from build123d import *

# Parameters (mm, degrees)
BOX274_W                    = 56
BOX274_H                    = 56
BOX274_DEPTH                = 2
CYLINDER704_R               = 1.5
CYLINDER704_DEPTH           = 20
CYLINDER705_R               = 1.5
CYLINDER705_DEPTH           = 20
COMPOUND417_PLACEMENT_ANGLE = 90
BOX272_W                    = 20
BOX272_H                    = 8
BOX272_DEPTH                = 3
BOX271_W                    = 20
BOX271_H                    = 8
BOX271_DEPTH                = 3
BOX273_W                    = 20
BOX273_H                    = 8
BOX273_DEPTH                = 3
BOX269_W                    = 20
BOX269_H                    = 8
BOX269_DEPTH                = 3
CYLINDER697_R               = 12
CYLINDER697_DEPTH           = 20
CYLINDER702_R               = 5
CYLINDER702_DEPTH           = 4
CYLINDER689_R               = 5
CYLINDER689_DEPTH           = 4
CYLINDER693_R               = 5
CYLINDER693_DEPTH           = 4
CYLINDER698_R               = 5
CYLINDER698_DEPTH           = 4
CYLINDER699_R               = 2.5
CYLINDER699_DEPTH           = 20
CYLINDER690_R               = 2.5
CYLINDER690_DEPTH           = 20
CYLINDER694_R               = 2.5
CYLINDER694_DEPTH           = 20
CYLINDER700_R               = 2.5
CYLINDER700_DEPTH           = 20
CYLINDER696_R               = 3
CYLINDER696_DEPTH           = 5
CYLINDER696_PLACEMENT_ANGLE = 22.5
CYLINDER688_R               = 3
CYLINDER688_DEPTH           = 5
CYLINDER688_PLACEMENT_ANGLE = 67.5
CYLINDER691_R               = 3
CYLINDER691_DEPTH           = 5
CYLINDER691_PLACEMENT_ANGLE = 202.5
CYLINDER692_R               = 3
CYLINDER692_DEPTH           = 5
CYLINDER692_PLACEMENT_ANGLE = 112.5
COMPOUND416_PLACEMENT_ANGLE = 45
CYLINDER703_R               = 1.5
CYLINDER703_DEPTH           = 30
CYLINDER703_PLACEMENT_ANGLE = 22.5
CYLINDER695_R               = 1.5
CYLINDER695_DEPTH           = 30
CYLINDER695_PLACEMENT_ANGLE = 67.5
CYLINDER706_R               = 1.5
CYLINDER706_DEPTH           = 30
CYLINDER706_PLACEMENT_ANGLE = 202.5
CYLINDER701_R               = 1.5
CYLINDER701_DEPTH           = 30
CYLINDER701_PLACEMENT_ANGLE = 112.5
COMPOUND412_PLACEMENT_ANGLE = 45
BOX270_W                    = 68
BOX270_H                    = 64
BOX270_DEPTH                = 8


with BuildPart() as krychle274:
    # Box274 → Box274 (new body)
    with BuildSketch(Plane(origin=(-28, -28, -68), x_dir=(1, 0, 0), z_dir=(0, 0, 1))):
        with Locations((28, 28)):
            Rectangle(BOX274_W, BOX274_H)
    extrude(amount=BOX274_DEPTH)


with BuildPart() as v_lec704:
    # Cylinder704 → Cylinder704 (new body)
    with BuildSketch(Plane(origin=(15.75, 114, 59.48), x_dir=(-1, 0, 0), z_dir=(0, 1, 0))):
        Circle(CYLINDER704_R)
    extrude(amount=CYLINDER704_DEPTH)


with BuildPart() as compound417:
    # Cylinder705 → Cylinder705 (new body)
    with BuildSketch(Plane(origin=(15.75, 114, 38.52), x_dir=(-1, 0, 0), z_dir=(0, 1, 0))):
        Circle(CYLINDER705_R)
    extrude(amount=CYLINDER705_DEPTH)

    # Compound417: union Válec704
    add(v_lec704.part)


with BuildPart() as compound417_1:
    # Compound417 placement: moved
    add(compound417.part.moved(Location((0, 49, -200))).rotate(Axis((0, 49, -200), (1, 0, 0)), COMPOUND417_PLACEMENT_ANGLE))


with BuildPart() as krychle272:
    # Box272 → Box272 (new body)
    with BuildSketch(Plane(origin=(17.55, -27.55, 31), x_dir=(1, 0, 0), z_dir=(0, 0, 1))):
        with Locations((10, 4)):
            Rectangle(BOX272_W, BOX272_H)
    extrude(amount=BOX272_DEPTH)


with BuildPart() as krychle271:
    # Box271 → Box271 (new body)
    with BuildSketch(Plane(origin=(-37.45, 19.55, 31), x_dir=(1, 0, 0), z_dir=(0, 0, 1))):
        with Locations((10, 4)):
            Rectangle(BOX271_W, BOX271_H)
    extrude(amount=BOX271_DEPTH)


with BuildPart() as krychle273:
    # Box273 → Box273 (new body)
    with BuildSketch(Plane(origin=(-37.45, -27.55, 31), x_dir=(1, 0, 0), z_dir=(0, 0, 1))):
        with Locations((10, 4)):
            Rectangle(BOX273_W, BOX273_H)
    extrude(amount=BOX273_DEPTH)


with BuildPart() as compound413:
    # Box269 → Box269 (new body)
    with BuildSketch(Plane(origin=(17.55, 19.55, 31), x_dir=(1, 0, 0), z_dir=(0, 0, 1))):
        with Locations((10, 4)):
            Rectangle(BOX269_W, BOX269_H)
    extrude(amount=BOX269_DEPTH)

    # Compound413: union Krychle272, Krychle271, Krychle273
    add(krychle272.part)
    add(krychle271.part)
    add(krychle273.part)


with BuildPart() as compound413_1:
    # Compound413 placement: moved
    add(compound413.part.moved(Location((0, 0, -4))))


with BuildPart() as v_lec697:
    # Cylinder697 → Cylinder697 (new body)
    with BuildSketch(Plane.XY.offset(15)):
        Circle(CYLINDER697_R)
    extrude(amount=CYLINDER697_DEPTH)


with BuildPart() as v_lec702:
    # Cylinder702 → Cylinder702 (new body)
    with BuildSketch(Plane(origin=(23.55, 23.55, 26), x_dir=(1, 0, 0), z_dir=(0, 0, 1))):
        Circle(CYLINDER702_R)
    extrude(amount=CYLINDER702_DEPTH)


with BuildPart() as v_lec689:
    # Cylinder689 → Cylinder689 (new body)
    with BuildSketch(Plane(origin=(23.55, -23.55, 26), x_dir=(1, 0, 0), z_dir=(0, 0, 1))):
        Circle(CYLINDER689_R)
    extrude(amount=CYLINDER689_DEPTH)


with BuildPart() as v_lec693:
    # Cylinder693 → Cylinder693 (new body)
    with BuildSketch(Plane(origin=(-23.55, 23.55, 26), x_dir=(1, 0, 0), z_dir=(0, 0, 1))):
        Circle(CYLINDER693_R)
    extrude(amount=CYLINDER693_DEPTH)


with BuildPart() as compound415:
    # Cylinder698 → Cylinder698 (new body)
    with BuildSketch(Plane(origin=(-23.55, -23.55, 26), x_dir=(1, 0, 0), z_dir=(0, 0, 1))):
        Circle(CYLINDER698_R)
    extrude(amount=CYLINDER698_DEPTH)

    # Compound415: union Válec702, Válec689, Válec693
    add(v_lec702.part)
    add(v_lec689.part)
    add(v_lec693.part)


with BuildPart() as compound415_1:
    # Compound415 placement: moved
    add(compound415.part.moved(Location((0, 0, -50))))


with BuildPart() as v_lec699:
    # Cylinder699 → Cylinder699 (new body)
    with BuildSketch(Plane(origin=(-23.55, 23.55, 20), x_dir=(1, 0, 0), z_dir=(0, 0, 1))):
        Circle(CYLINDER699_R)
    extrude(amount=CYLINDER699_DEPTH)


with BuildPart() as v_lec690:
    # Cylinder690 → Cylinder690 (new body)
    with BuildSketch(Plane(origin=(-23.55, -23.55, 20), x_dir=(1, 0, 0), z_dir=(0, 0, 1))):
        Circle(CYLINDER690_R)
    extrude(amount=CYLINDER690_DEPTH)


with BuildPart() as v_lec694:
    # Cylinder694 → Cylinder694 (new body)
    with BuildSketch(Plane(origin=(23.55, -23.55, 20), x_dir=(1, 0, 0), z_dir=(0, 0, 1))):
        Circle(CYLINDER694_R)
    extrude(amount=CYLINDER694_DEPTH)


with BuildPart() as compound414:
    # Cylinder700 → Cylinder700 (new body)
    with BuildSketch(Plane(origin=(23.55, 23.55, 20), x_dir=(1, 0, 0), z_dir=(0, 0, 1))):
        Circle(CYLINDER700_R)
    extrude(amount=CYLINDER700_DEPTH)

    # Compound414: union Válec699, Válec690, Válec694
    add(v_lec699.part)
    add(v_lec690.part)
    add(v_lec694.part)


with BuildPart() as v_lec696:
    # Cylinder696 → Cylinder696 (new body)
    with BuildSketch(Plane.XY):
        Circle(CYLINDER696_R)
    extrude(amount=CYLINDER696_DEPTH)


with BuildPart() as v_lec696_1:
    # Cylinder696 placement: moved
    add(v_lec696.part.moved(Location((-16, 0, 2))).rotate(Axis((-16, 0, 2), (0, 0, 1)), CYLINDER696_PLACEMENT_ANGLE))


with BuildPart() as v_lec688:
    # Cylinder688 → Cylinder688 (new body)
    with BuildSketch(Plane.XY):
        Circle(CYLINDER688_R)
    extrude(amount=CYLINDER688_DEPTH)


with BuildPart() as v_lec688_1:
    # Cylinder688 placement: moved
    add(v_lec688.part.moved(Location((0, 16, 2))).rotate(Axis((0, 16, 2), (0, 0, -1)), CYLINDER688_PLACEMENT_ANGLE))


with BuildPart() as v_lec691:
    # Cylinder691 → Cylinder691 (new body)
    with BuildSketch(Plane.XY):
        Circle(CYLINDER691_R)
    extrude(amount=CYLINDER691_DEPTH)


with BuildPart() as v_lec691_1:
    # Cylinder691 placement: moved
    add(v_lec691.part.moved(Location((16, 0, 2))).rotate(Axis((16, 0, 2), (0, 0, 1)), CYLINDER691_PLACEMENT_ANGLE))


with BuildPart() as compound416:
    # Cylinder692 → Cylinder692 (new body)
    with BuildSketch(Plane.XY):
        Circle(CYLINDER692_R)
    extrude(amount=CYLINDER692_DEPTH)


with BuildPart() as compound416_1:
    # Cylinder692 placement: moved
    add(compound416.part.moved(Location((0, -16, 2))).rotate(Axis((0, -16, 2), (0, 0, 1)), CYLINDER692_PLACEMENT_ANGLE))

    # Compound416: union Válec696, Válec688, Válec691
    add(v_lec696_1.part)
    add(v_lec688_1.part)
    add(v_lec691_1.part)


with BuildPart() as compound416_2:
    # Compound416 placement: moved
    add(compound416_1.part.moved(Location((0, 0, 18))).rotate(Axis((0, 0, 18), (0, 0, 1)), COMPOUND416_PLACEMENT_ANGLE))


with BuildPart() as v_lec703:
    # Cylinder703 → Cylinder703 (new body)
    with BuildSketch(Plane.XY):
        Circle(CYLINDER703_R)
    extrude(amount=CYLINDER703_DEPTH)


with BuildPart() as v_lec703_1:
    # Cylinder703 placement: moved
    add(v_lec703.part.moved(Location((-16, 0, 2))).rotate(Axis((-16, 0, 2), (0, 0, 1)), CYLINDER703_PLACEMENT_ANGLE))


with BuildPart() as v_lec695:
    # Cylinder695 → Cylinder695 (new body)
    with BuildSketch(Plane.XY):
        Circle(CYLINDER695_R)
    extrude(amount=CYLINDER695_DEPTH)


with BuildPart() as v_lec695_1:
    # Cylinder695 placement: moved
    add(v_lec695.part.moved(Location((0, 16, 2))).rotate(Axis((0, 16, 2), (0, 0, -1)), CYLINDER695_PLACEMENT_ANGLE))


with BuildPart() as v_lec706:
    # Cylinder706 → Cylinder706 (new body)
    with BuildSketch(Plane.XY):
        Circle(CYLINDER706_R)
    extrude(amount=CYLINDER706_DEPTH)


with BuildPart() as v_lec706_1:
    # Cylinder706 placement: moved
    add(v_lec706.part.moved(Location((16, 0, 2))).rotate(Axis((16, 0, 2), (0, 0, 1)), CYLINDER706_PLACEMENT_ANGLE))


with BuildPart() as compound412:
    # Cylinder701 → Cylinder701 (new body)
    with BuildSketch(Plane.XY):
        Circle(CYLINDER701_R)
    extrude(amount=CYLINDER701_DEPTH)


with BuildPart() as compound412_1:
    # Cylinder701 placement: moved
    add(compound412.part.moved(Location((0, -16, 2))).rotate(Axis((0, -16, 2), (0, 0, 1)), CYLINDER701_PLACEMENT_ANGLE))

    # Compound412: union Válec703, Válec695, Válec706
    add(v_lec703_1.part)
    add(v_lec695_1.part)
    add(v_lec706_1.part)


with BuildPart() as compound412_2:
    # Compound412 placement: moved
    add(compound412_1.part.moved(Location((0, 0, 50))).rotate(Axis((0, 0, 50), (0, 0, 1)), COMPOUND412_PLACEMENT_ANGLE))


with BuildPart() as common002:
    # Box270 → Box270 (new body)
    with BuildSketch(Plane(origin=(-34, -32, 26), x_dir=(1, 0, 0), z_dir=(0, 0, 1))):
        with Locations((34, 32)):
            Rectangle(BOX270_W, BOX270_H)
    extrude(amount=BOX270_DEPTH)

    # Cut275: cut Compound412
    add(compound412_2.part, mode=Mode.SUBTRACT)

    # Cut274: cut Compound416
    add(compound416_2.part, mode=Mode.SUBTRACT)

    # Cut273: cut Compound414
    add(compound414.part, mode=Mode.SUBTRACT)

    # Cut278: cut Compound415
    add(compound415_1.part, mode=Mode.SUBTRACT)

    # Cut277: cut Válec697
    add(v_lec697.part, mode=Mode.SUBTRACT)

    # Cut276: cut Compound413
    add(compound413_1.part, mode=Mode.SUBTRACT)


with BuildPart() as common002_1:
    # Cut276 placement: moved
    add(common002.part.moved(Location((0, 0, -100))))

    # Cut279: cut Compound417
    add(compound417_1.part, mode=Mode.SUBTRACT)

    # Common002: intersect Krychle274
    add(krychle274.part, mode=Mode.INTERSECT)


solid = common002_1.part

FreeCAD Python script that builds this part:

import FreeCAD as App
import Part
import Sketcher

V = App.Vector
Q = App.Units.Quantity


def add_polygon(sketch, points):
    """Adds a closed chain of lines whose ends are joined by coincident constraints."""
    first, n = sketch.GeometryCount, len(points)
    for a, b in zip(points, points[1:] + points[:1]):
        sketch.addGeometry(Part.LineSegment(App.Vector(*a, 0), App.Vector(*b, 0)), False)
    for i in range(n):
        sketch.addConstraint(Sketcher.Constraint("Coincident", first + i, 2, first + (i + 1) % n, 1))

doc = App.newDocument("Part")
body = doc.addObject("PartDesign::Body", "Body")

# Sketch on XY plane
sketch1 = body.newObject("Sketcher::SketchObject", "Sketch")
sketch1.AttachmentSupport = (doc.getObject("XY_Plane"), [""])
sketch1.MapMode = "FlatFace"
sketch1.AttachmentOffset = App.Placement(V(0, 0, -68), App.Rotation())
add_polygon(sketch1, [(-28, 28), (-28, -28), (28, -28), (28, 28)])  # lines 0-3
sketch1.addConstraint(Sketcher.Constraint("Vertical", 0))
sketch1.addConstraint(Sketcher.Constraint("Horizontal", 1))
sketch1.addConstraint(Sketcher.Constraint("Vertical", 2))
sketch1.addConstraint(Sketcher.Constraint("Horizontal", 3))
sketch1.addConstraint(Sketcher.Constraint("Symmetric", 0, 2, 2, 2, -1, 1))
sketch1.addConstraint(Sketcher.Constraint("Equal", 3, 0))
sketch1.addConstraint(Sketcher.Constraint("DistanceX", 1, 1, 1, 2, Q("56 mm")))
pad1 = body.newObject("PartDesign::Pad", "Pad")
pad1.Profile = sketch1
pad1.Length = 2
body2 = doc.addObject("PartDesign::Body", "Body001")

# Sketch on XZ plane
sketch2 = body2.newObject("Sketcher::SketchObject", "Sketch001")
sketch2.AttachmentSupport = (doc.getObject("XZ_Plane001"), [""])
sketch2.MapMode = "FlatFace"
sketch2.AttachmentOffset = App.Placement(V(0, 0, -114), App.Rotation())
sketch2.addGeometry(Part.Circle(V(15.75, 59.48, 0), V(0, 0, 1), 1.5), False)
sketch2.addConstraint(Sketcher.Constraint("Diameter", 0, Q("3 mm")))
sketch2.addConstraint(Sketcher.Constraint("DistanceX", -1, 1, 0, 3, Q("15.75 mm")))
sketch2.addConstraint(Sketcher.Constraint("DistanceY", -1, 1, 0, 3, Q("59.48 mm")))
pad2 = body2.newObject("PartDesign::Pad", "Pad001")
pad2.Profile = sketch2
pad2.Length = 20
pad2.Reversed = True
body3 = doc.addObject("PartDesign::Body", "Body002")
body3.AllowCompound = True

# Sketch on XZ plane
sketch3 = body3.newObject("Sketcher::SketchObject", "Sketch002")
sketch3.AttachmentSupport = (doc.getObject("XZ_Plane002"), [""])
sketch3.MapMode = "FlatFace"
sketch3.AttachmentOffset = App.Placement(V(0, 0, -114), App.Rotation())
sketch3.addGeometry(Part.Circle(V(15.75, 38.52, 0), V(0, 0, 1), 1.5), False)
sketch3.addConstraint(Sketcher.Constraint("Diameter", 0, Q("3 mm")))
sketch3.addConstraint(Sketcher.Constraint("DistanceX", -1, 1, 0, 3, Q("15.75 mm")))
sketch3.addConstraint(Sketcher.Constraint("DistanceY", -1, 1, 0, 3, Q("38.52 mm")))
pad3 = body3.newObject("PartDesign::Pad", "Pad002")
pad3.Profile = sketch3
pad3.Length = 20
pad3.Reversed = True
doc.recompute()

boolean = body3.newObject("PartDesign::Boolean", "Boolean")
boolean.Type = "Fuse"
boolean.addObjects([body2])
body4 = doc.addObject("PartDesign::Body", "Body003")
body4.AllowCompound = True
doc.recompute()

body3.Placement = App.Placement(V(0, 49, -200), App.Rotation(V(1, 0, 0), 90))
boolean2 = body4.newObject("PartDesign::Boolean", "Boolean001")
boolean2.Type = "Fuse"
boolean2.addObjects([body3])
body5 = doc.addObject("PartDesign::Body", "Body004")

# Sketch on XY plane
sketch4 = body5.newObject("Sketcher::SketchObject", "Sketch003")
sketch4.AttachmentSupport = (doc.getObject("XY_Plane004"), [""])
sketch4.MapMode = "FlatFace"
sketch4.AttachmentOffset = App.Placement(V(0, 0, 31), App.Rotation())
add_polygon(sketch4, [(17.55, -19.55), (17.55, -27.55), (37.55, -27.55), (37.55, -19.55)])  # lines 0-3
sketch4.addConstraint(Sketcher.Constraint("Vertical", 0))
sketch4.addConstraint(Sketcher.Constraint("Horizontal", 1))
sketch4.addConstraint(Sketcher.Constraint("Vertical", 2))
sketch4.addConstraint(Sketcher.Constraint("Horizontal", 3))
sketch4.addConstraint(Sketcher.Constraint("DistanceX", 1, 1, 1, 2, Q("20 mm")))
sketch4.addConstraint(Sketcher.Constraint("DistanceY", 0, 2, 0, 1, Q("8 mm")))
sketch4.addConstraint(Sketcher.Constraint("DistanceX", -1, 1, 0, 2, Q("17.55 mm")))
sketch4.addConstraint(Sketcher.Constraint("DistanceY", 0, 2, -1, 1, Q("27.55 mm")))
pad4 = body5.newObject("PartDesign::Pad", "Pad003")
pad4.Profile = sketch4
pad4.Length = 3
body6 = doc.addObject("PartDesign::Body", "Body005")

# Sketch on XY plane
sketch5 = body6.newObject("Sketcher::SketchObject", "Sketch004")
sketch5.AttachmentSupport = (doc.getObject("XY_Plane005"), [""])
sketch5.MapMode = "FlatFace"
sketch5.AttachmentOffset = App.Placement(V(0, 0, 31), App.Rotation())
add_polygon(sketch5, [(-37.45, 27.55), (-37.45, 19.55), (-17.45, 19.55), (-17.45, 27.55)])  # lines 0-3
sketch5.addConstraint(Sketcher.Constraint("Vertical", 0))
sketch5.addConstraint(Sketcher.Constraint("Horizontal", 1))
sketch5.addConstraint(Sketcher.Constraint("Vertical", 2))
sketch5.addConstraint(Sketcher.Constraint("Horizontal", 3))
sketch5.addConstraint(Sketcher.Constraint("DistanceX", 1, 1, 1, 2, Q("20 mm")))
sketch5.addConstraint(Sketcher.Constraint("DistanceY", 0, 2, 0, 1, Q("8 mm")))
sketch5.addConstraint(Sketcher.Constraint("DistanceX", 0, 2, -1, 1, Q("37.45 mm")))
sketch5.addConstraint(Sketcher.Constraint("DistanceY", -1, 1, 0, 2, Q("19.55 mm")))
pad5 = body6.newObject("PartDesign::Pad", "Pad004")
pad5.Profile = sketch5
pad5.Length = 3
body7 = doc.addObject("PartDesign::Body", "Body006")

# Sketch on XY plane
sketch6 = body7.newObject("Sketcher::SketchObject", "Sketch005")
sketch6.AttachmentSupport = (doc.getObject("XY_Plane006"), [""])
sketch6.MapMode = "FlatFace"
sketch6.AttachmentOffset = App.Placement(V(0, 0, 31), App.Rotation())
add_polygon(sketch6, [(-37.45, -19.55), (-37.45, -27.55), (-17.45, -27.55), (-17.45, -19.55)])  # lines 0-3
sketch6.addConstraint(Sketcher.Constraint("Vertical", 0))
sketch6.addConstraint(Sketcher.Constraint("Horizontal", 1))
sketch6.addConstraint(Sketcher.Constraint("Vertical", 2))
sketch6.addConstraint(Sketcher.Constraint("Horizontal", 3))
sketch6.addConstraint(Sketcher.Constraint("DistanceX", 1, 1, 1, 2, Q("20 mm")))
sketch6.addConstraint(Sketcher.Constraint("DistanceY", 0, 2, 0, 1, Q("8 mm")))
sketch6.addConstraint(Sketcher.Constraint("DistanceX", 0, 2, -1, 1, Q("37.45 mm")))
sketch6.addConstraint(Sketcher.Constraint("DistanceY", 0, 2, -1, 1, Q("27.55 mm")))
pad6 = body7.newObject("PartDesign::Pad", "Pad005")
pad6.Profile = sketch6
pad6.Length = 3
body8 = doc.addObject("PartDesign::Body", "Body007")
body8.AllowCompound = True

# Sketch on XY plane
sketch7 = body8.newObject("Sketcher::SketchObject", "Sketch006")
sketch7.AttachmentSupport = (doc.getObject("XY_Plane007"), [""])
sketch7.MapMode = "FlatFace"
sketch7.AttachmentOffset = App.Placement(V(0, 0, 31), App.Rotation())
add_polygon(sketch7, [(17.55, 27.55), (17.55, 19.55), (37.55, 19.55), (37.55, 27.55)])  # lines 0-3
sketch7.addConstraint(Sketcher.Constraint("Vertical", 0))
sketch7.addConstraint(Sketcher.Constraint("Horizontal", 1))
sketch7.addConstraint(Sketcher.Constraint("Vertical", 2))
sketch7.addConstraint(Sketcher.Constraint("Horizontal", 3))
sketch7.addConstraint(Sketcher.Constraint("DistanceX", 1, 1, 1, 2, Q("20 mm")))
sketch7.addConstraint(Sketcher.Constraint("DistanceY", 0, 2, 0, 1, Q("8 mm")))
sketch7.addConstraint(Sketcher.Constraint("DistanceX", -1, 1, 0, 2, Q("17.55 mm")))
sketch7.addConstraint(Sketcher.Constraint("DistanceY", -1, 1, 0, 2, Q("19.55 mm")))
pad7 = body8.newObject("PartDesign::Pad", "Pad006")
pad7.Profile = sketch7
pad7.Length = 3
doc.recompute()

boolean3 = body8.newObject("PartDesign::Boolean", "Boolean002")
boolean3.Type = "Fuse"
boolean3.addObjects([body5])
doc.recompute()

boolean4 = body8.newObject("PartDesign::Boolean", "Boolean003")
boolean4.Type = "Fuse"
boolean4.addObjects([body6])
doc.recompute()

boolean5 = body8.newObject("PartDesign::Boolean", "Boolean004")
boolean5.Type = "Fuse"
boolean5.addObjects([body7])
body9 = doc.addObject("PartDesign::Body", "Body008")
body9.AllowCompound = True
doc.recompute()

body8.Placement = App.Placement(V(0, 0, -4), App.Rotation(V(0, 0, 1), 0))
boolean6 = body9.newObject("PartDesign::Boolean", "Boolean005")
boolean6.Type = "Fuse"
boolean6.addObjects([body8])
body10 = doc.addObject("PartDesign::Body", "Body009")

# Sketch on XY plane
sketch8 = body10.newObject("Sketcher::SketchObject", "Sketch007")
sketch8.AttachmentSupport = (doc.getObject("XY_Plane009"), [""])
sketch8.MapMode = "FlatFace"
sketch8.AttachmentOffset = App.Placement(V(0, 0, 15), App.Rotation())
sketch8.addGeometry(Part.Circle(V(0, 0, 0), V(0, 0, 1), 12), False)
sketch8.addConstraint(Sketcher.Constraint("Coincident", 0, 3, -1, 1))
sketch8.addConstraint(Sketcher.Constraint("Diameter", 0, Q("24 mm")))
pad8 = body10.newObject("PartDesign::Pad", "Pad007")
pad8.Profile = sketch8
pad8.Length = 20
body11 = doc.addObject("PartDesign::Body", "Body010")

# Sketch on XY plane
sketch9 = body11.newObject("Sketcher::SketchObject", "Sketch008")
sketch9.AttachmentSupport = (doc.getObject("XY_Plane010"), [""])
sketch9.MapMode = "FlatFace"
sketch9.AttachmentOffset = App.Placement(V(0, 0, 26), App.Rotation())
sketch9.addGeometry(Part.Circle(V(23.55, 23.55, 0), V(0, 0, 1), 5), False)
sketch9.addConstraint(Sketcher.Constraint("Diameter", 0, Q("10 mm")))
sketch9.addConstraint(Sketcher.Constraint("DistanceX", -1, 1, 0, 3, Q("23.55 mm")))
sketch9.addConstraint(Sketcher.Constraint("DistanceY", -1, 1, 0, 3, Q("23.55 mm")))
pad9 = body11.newObject("PartDesign::Pad", "Pad008")
pad9.Profile = sketch9
pad9.Length = 4
body12 = doc.addObject("PartDesign::Body", "Body011")

# Sketch on XY plane
sketch10 = body12.newObject("Sketcher::SketchObject", "Sketch009")
sketch10.AttachmentSupport = (doc.getObject("XY_Plane011"), [""])
sketch10.MapMode = "FlatFace"
sketch10.AttachmentOffset = App.Placement(V(0, 0, 26), App.Rotation())
sketch10.addGeometry(Part.Circle(V(23.55, -23.55, 0), V(0, 0, 1), 5), False)
sketch10.addConstraint(Sketcher.Constraint("Diameter", 0, Q("10 mm")))
sketch10.addConstraint(Sketcher.Constraint("DistanceX", -1, 1, 0, 3, Q("23.55 mm")))
sketch10.addConstraint(Sketcher.Constraint("DistanceY", 0, 3, -1, 1, Q("23.55 mm")))
pad10 = body12.newObject("PartDesign::Pad", "Pad009")
pad10.Profile = sketch10
pad10.Length = 4
body13 = doc.addObject("PartDesign::Body", "Body012")

# Sketch on XY plane
sketch11 = body13.newObject("Sketcher::SketchObject", "Sketch010")
sketch11.AttachmentSupport = (doc.getObject("XY_Plane012"), [""])
sketch11.MapMode = "FlatFace"
sketch11.AttachmentOffset = App.Placement(V(0, 0, 26), App.Rotation())
sketch11.addGeometry(Part.Circle(V(-23.55, 23.55, 0), V(0, 0, 1), 5), False)
sketch11.addConstraint(Sketcher.Constraint("Diameter", 0, Q("10 mm")))
sketch11.addConstraint(Sketcher.Constraint("DistanceX", 0, 3, -1, 1, Q("23.55 mm")))
sketch11.addConstraint(Sketcher.Constraint("DistanceY", -1, 1, 0, 3, Q("23.55 mm")))
pad11 = body13.newObject("PartDesign::Pad", "Pad010")
pad11.Profile = sketch11
pad11.Length = 4
body14 = doc.addObject("PartDesign::Body", "Body013")
body14.AllowCompound = True

# Sketch on XY plane
sketch12 = body14.newObject("Sketcher::SketchObject", "Sketch011")
sketch12.AttachmentSupport = (doc.getObject("XY_Plane013"), [""])
sketch12.MapMode = "FlatFace"
sketch12.AttachmentOffset = App.Placement(V(0, 0, 26), App.Rotation())
sketch12.addGeometry(Part.Circle(V(-23.55, -23.55, 0), V(0, 0, 1), 5), False)
sketch12.addConstraint(Sketcher.Constraint("Diameter", 0, Q("10 mm")))
sketch12.addConstraint(Sketcher.Constraint("DistanceX", 0, 3, -1, 1, Q("23.55 mm")))
sketch12.addConstraint(Sketcher.Constraint("DistanceY", 0, 3, -1, 1, Q("23.55 mm")))
pad12 = body14.newObject("PartDesign::Pad", "Pad011")
pad12.Profile = sketch12
pad12.Length = 4
doc.recompute()

boolean7 = body14.newObject("PartDesign::Boolean", "Boolean006")
boolean7.Type = "Fuse"
boolean7.addObjects([body11])
doc.recompute()

boolean8 = body14.newObject("PartDesign::Boolean", "Boolean007")
boolean8.Type = "Fuse"
boolean8.addObjects([body12])
doc.recompute()

boolean9 = body14.newObject("PartDesign::Boolean", "Boolean008")
boolean9.Type = "Fuse"
boolean9.addObjects([body13])
body15 = doc.addObject("PartDesign::Body", "Body014")
body15.AllowCompound = True
doc.recompute()

body14.Placement = App.Placement(V(0, 0, -50), App.Rotation(V(0, 0, 1), 0))
boolean10 = body15.newObject("PartDesign::Boolean", "Boolean009")
boolean10.Type = "Fuse"
boolean10.addObjects([body14])
body16 = doc.addObject("PartDesign::Body", "Body015")

# Sketch on XY plane
sketch13 = body16.newObject("Sketcher::SketchObject", "Sketch012")
sketch13.AttachmentSupport = (doc.getObject("XY_Plane015"), [""])
sketch13.MapMode = "FlatFace"
sketch13.AttachmentOffset = App.Placement(V(0, 0, 20), App.Rotation())
sketch13.addGeometry(Part.Circle(V(-23.55, 23.55, 0), V(0, 0, 1), 2.5), False)
sketch13.addConstraint(Sketcher.Constraint("Diameter", 0, Q("5 mm")))
sketch13.addConstraint(Sketcher.Constraint("DistanceX", 0, 3, -1, 1, Q("23.55 mm")))
sketch13.addConstraint(Sketcher.Constraint("DistanceY", -1, 1, 0, 3, Q("23.55 mm")))
pad13 = body16.newObject("PartDesign::Pad", "Pad012")
pad13.Profile = sketch13
pad13.Length = 20
body17 = doc.addObject("PartDesign::Body", "Body016")

# Sketch on XY plane
sketch14 = body17.newObject("Sketcher::SketchObject", "Sketch013")
sketch14.AttachmentSupport = (doc.getObject("XY_Plane016"), [""])
sketch14.MapMode = "FlatFace"
sketch14.AttachmentOffset = App.Placement(V(0, 0, 20), App.Rotation())
sketch14.addGeometry(Part.Circle(V(-23.55, -23.55, 0), V(0, 0, 1), 2.5), False)
sketch14.addConstraint(Sketcher.Constraint("Diameter", 0, Q("5 mm")))
sketch14.addConstraint(Sketcher.Constraint("DistanceX", 0, 3, -1, 1, Q("23.55 mm")))
sketch14.addConstraint(Sketcher.Constraint("DistanceY", 0, 3, -1, 1, Q("23.55 mm")))
pad14 = body17.newObject("PartDesign::Pad", "Pad013")
pad14.Profile = sketch14
pad14.Length = 20
body18 = doc.addObject("PartDesign::Body", "Body017")

# Sketch on XY plane
sketch15 = body18.newObject("Sketcher::SketchObject", "Sketch014")
sketch15.AttachmentSupport = (doc.getObject("XY_Plane017"), [""])
sketch15.MapMode = "FlatFace"
sketch15.AttachmentOffset = App.Placement(V(0, 0, 20), App.Rotation())
sketch15.addGeometry(Part.Circle(V(23.55, -23.55, 0), V(0, 0, 1), 2.5), False)
sketch15.addConstraint(Sketcher.Constraint("Diameter", 0, Q("5 mm")))
sketch15.addConstraint(Sketcher.Constraint("DistanceX", -1, 1, 0, 3, Q("23.55 mm")))
sketch15.addConstraint(Sketcher.Constraint("DistanceY", 0, 3, -1, 1, Q("23.55 mm")))
pad15 = body18.newObject("PartDesign::Pad", "Pad014")
pad15.Profile = sketch15
pad15.Length = 20
body19 = doc.addObject("PartDesign::Body", "Body018")
body19.AllowCompound = True

# Sketch on XY plane
sketch16 = body19.newObject("Sketcher::SketchObject", "Sketch015")
sketch16.AttachmentSupport = (doc.getObject("XY_Plane018"), [""])
sketch16.MapMode = "FlatFace"
sketch16.AttachmentOffset = App.Placement(V(0, 0, 20), App.Rotation())
sketch16.addGeometry(Part.Circle(V(23.55, 23.55, 0), V(0, 0, 1), 2.5), False)
sketch16.addConstraint(Sketcher.Constraint("Diameter", 0, Q("5 mm")))
sketch16.addConstraint(Sketcher.Constraint("DistanceX", -1, 1, 0, 3, Q("23.55 mm")))
sketch16.addConstraint(Sketcher.Constraint("DistanceY", -1, 1, 0, 3, Q("23.55 mm")))
pad16 = body19.newObject("PartDesign::Pad", "Pad015")
pad16.Profile = sketch16
pad16.Length = 20
doc.recompute()

boolean11 = body19.newObject("PartDesign::Boolean", "Boolean010")
boolean11.Type = "Fuse"
boolean11.addObjects([body16])
doc.recompute()

boolean12 = body19.newObject("PartDesign::Boolean", "Boolean011")
boolean12.Type = "Fuse"
boolean12.addObjects([body17])
doc.recompute()

boolean13 = body19.newObject("PartDesign::Boolean", "Boolean012")
boolean13.Type = "Fuse"
boolean13.addObjects([body18])
body20 = doc.addObject("PartDesign::Body", "Body019")

# Sketch on XY plane
sketch17 = body20.newObject("Sketcher::SketchObject", "Sketch016")
sketch17.AttachmentSupport = (doc.getObject("XY_Plane019"), [""])
sketch17.MapMode = "FlatFace"
sketch17.addGeometry(Part.Circle(V(0, 0, 0), V(0, 0, 1), 3), False)
sketch17.addConstraint(Sketcher.Constraint("Coincident", 0, 3, -1, 1))
sketch17.addConstraint(Sketcher.Constraint("Diameter", 0, Q("6 mm")))
pad17 = body20.newObject("PartDesign::Pad", "Pad016")
pad17.Profile = sketch17
pad17.Length = 5
body21 = doc.addObject("PartDesign::Body", "Body020")
doc.recompute()

body20.Placement = App.Placement(V(-16, 0, 2), App.Rotation(V(0, 0, 1), 22.5))
boolean14 = body21.newObject("PartDesign::Boolean", "Boolean013")
boolean14.Type = "Fuse"
boolean14.addObjects([body20])
body22 = doc.addObject("PartDesign::Body", "Body021")

# Sketch on XY plane
sketch18 = body22.newObject("Sketcher::SketchObject", "Sketch017")
sketch18.AttachmentSupport = (doc.getObject("XY_Plane021"), [""])
sketch18.MapMode = "FlatFace"
sketch18.addGeometry(Part.Circle(V(0, 0, 0), V(0, 0, 1), 3), False)
sketch18.addConstraint(Sketcher.Constraint("Coincident", 0, 3, -1, 1))
sketch18.addConstraint(Sketcher.Constraint("Diameter", 0, Q("6 mm")))
pad18 = body22.newObject("PartDesign::Pad", "Pad017")
pad18.Profile = sketch18
pad18.Length = 5
body23 = doc.addObject("PartDesign::Body", "Body022")
doc.recompute()

body22.Placement = App.Placement(V(0, 16, 2), App.Rotation(V(0, 0, -1), 67.5))
boolean15 = body23.newObject("PartDesign::Boolean", "Boolean014")
boolean15.Type = "Fuse"
boolean15.addObjects([body22])
body24 = doc.addObject("PartDesign::Body", "Body023")

# Sketch on XY plane
sketch19 = body24.newObject("Sketcher::SketchObject", "Sketch018")
sketch19.AttachmentSupport = (doc.getObject("XY_Plane023"), [""])
sketch19.MapMode = "FlatFace"
sketch19.addGeometry(Part.Circle(V(0, 0, 0), V(0, 0, 1), 3), False)
sketch19.addConstraint(Sketcher.Constraint("Coincident", 0, 3, -1, 1))
sketch19.addConstraint(Sketcher.Constraint("Diameter", 0, Q("6 mm")))
pad19 = body24.newObject("PartDesign::Pad", "Pad018")
pad19.Profile = sketch19
pad19.Length = 5
body25 = doc.addObject("PartDesign::Body", "Body024")
doc.recompute()

body24.Placement = App.Placement(V(16, 0, 2), App.Rotation(V(0, 0, 1), 202.5))
boolean16 = body25.newObject("PartDesign::Boolean", "Boolean015")
boolean16.Type = "Fuse"
boolean16.addObjects([body24])
body26 = doc.addObject("PartDesign::Body", "Body025")

# Sketch on XY plane
sketch20 = body26.newObject("Sketcher::SketchObject", "Sketch019")
sketch20.AttachmentSupport = (doc.getObject("XY_Plane025"), [""])
sketch20.MapMode = "FlatFace"
sketch20.addGeometry(Part.Circle(V(0, 0, 0), V(0, 0, 1), 3), False)
sketch20.addConstraint(Sketcher.Constraint("Coincident", 0, 3, -1, 1))
sketch20.addConstraint(Sketcher.Constraint("Diameter", 0, Q("6 mm")))
pad20 = body26.newObject("PartDesign::Pad", "Pad019")
pad20.Profile = sketch20
pad20.Length = 5
body27 = doc.addObject("PartDesign::Body", "Body026")
body27.AllowCompound = True
doc.recompute()

body26.Placement = App.Placement(V(0, -16, 2), App.Rotation(V(0, 0, 1), 112.5))
boolean17 = body27.newObject("PartDesign::Boolean", "Boolean016")
boolean17.Type = "Fuse"
boolean17.addObjects([body26])
doc.recompute()

boolean18 = body27.newObject("PartDesign::Boolean", "Boolean017")
boolean18.Type = "Fuse"
boolean18.addObjects([body21])
doc.recompute()

boolean19 = body27.newObject("PartDesign::Boolean", "Boolean018")
boolean19.Type = "Fuse"
boolean19.addObjects([body23])
doc.recompute()

boolean20 = body27.newObject("PartDesign::Boolean", "Boolean019")
boolean20.Type = "Fuse"
boolean20.addObjects([body25])
body28 = doc.addObject("PartDesign::Body", "Body027")
body28.AllowCompound = True
doc.recompute()

body27.Placement = App.Placement(V(0, 0, 18), App.Rotation(V(0, 0, 1), 45))
boolean21 = body28.newObject("PartDesign::Boolean", "Boolean020")
boolean21.Type = "Fuse"
boolean21.addObjects([body27])
body29 = doc.addObject("PartDesign::Body", "Body028")

# Sketch on XY plane
sketch21 = body29.newObject("Sketcher::SketchObject", "Sketch020")
sketch21.AttachmentSupport = (doc.getObject("XY_Plane028"), [""])
sketch21.MapMode = "FlatFace"
sketch21.addGeometry(Part.Circle(V(0, 0, 0), V(0, 0, 1), 1.5), False)
sketch21.addConstraint(Sketcher.Constraint("Coincident", 0, 3, -1, 1))
sketch21.addConstraint(Sketcher.Constraint("Diameter", 0, Q("3 mm")))
pad21 = body29.newObject("PartDesign::Pad", "Pad020")
pad21.Profile = sketch21
pad21.Length = 30
body30 = doc.addObject("PartDesign::Body", "Body029")
doc.recompute()

body29.Placement = App.Placement(V(-16, 0, 2), App.Rotation(V(0, 0, 1), 22.5))
boolean22 = body30.newObject("PartDesign::Boolean", "Boolean021")
boolean22.Type = "Fuse"
boolean22.addObjects([body29])
body31 = doc.addObject("PartDesign::Body", "Body030")

# Sketch on XY plane
sketch22 = body31.newObject("Sketcher::SketchObject", "Sketch021")
sketch22.AttachmentSupport = (doc.getObject("XY_Plane030"), [""])
sketch22.MapMode = "FlatFace"
sketch22.addGeometry(Part.Circle(V(0, 0, 0), V(0, 0, 1), 1.5), False)
sketch22.addConstraint(Sketcher.Constraint("Coincident", 0, 3, -1, 1))
sketch22.addConstraint(Sketcher.Constraint("Diameter", 0, Q("3 mm")))
pad22 = body31.newObject("PartDesign::Pad", "Pad021")
pad22.Profile = sketch22
pad22.Length = 30
body32 = doc.addObject("PartDesign::Body", "Body031")
doc.recompute()

body31.Placement = App.Placement(V(0, 16, 2), App.Rotation(V(0, 0, -1), 67.5))
boolean23 = body32.newObject("PartDesign::Boolean", "Boolean022")
boolean23.Type = "Fuse"
boolean23.addObjects([body31])
body33 = doc.addObject("PartDesign::Body", "Body032")

# Sketch on XY plane
sketch23 = body33.newObject("Sketcher::SketchObject", "Sketch022")
sketch23.AttachmentSupport = (doc.getObject("XY_Plane032"), [""])
sketch23.MapMode = "FlatFace"
sketch23.addGeometry(Part.Circle(V(0, 0, 0), V(0, 0, 1), 1.5), False)
sketch23.addConstraint(Sketcher.Constraint("Coincident", 0, 3, -1, 1))
sketch23.addConstraint(Sketcher.Constraint("Diameter", 0, Q("3 mm")))
pad23 = body33.newObject("PartDesign::Pad", "Pad022")
pad23.Profile = sketch23
pad23.Length = 30
body34 = doc.addObject("PartDesign::Body", "Body033")
doc.recompute()

body33.Placement = App.Placement(V(16, 0, 2), App.Rotation(V(0, 0, 1), 202.5))
boolean24 = body34.newObject("PartDesign::Boolean", "Boolean023")
boolean24.Type = "Fuse"
boolean24.addObjects([body33])
body35 = doc.addObject("PartDesign::Body", "Body034")

# Sketch on XY plane
sketch24 = body35.newObject("Sketcher::SketchObject", "Sketch023")
sketch24.AttachmentSupport = (doc.getObject("XY_Plane034"), [""])
sketch24.MapMode = "FlatFace"
sketch24.addGeometry(Part.Circle(V(0, 0, 0), V(0, 0, 1), 1.5), False)
sketch24.addConstraint(Sketcher.Constraint("Coincident", 0, 3, -1, 1))
sketch24.addConstraint(Sketcher.Constraint("Diameter", 0, Q("3 mm")))
pad24 = body35.newObject("PartDesign::Pad", "Pad023")
pad24.Profile = sketch24
pad24.Length = 30
body36 = doc.addObject("PartDesign::Body", "Body035")
body36.AllowCompound = True
doc.recompute()

body35.Placement = App.Placement(V(0, -16, 2), App.Rotation(V(0, 0, 1), 112.5))
boolean25 = body36.newObject("PartDesign::Boolean", "Boolean024")
boolean25.Type = "Fuse"
boolean25.addObjects([body35])
doc.recompute()

boolean26 = body36.newObject("PartDesign::Boolean", "Boolean025")
boolean26.Type = "Fuse"
boolean26.addObjects([body30])
doc.recompute()

boolean27 = body36.newObject("PartDesign::Boolean", "Boolean026")
boolean27.Type = "Fuse"
boolean27.addObjects([body32])
doc.recompute()

boolean28 = body36.newObject("PartDesign::Boolean", "Boolean027")
boolean28.Type = "Fuse"
boolean28.addObjects([body34])
body37 = doc.addObject("PartDesign::Body", "Body036")
body37.AllowCompound = True
doc.recompute()

body36.Placement = App.Placement(V(0, 0, 50), App.Rotation(V(0, 0, 1), 45))
boolean29 = body37.newObject("PartDesign::Boolean", "Boolean028")
boolean29.Type = "Fuse"
boolean29.addObjects([body36])
body38 = doc.addObject("PartDesign::Body", "Body037")

# Sketch on XY plane
sketch25 = body38.newObject("Sketcher::SketchObject", "Sketch024")
sketch25.AttachmentSupport = (doc.getObject("XY_Plane037"), [""])
sketch25.MapMode = "FlatFace"
sketch25.AttachmentOffset = App.Placement(V(0, 0, 26), App.Rotation())
add_polygon(sketch25, [(-34, 32), (-34, -32), (34, -32), (34, 32)])  # lines 0-3
sketch25.addConstraint(Sketcher.Constraint("Vertical", 0))
sketch25.addConstraint(Sketcher.Constraint("Horizontal", 1))
sketch25.addConstraint(Sketcher.Constraint("Vertical", 2))
sketch25.addConstraint(Sketcher.Constraint("Horizontal", 3))
sketch25.addConstraint(Sketcher.Constraint("Symmetric", 0, 2, 2, 2, -1, 1))
sketch25.addConstraint(Sketcher.Constraint("DistanceX", 1, 1, 1, 2, Q("68 mm")))
sketch25.addConstraint(Sketcher.Constraint("DistanceY", 0, 2, 0, 1, Q("64 mm")))
pad25 = body38.newObject("PartDesign::Pad", "Pad024")
pad25.Profile = sketch25
pad25.Length = 8
doc.recompute()

boolean30 = body38.newObject("PartDesign::Boolean", "Boolean029")
boolean30.Type = "Cut"
boolean30.addObjects([body37])
doc.recompute()

boolean31 = body38.newObject("PartDesign::Boolean", "Boolean030")
boolean31.Type = "Cut"
boolean31.addObjects([body28])
doc.recompute()

boolean32 = body38.newObject("PartDesign::Boolean", "Boolean031")
boolean32.Type = "Cut"
boolean32.addObjects([body19])
doc.recompute()

boolean33 = body38.newObject("PartDesign::Boolean", "Boolean032")
boolean33.Type = "Cut"
boolean33.addObjects([body15])
doc.recompute()

boolean34 = body38.newObject("PartDesign::Boolean", "Boolean033")
boolean34.Type = "Cut"
boolean34.addObjects([body10])
doc.recompute()

boolean35 = body38.newObject("PartDesign::Boolean", "Boolean034")
boolean35.Type = "Cut"
boolean35.addObjects([body9])
body39 = doc.addObject("PartDesign::Body", "Body038")
doc.recompute()

body38.Placement = App.Placement(V(0, 0, -100), App.Rotation(V(0, 0, 1), 0))
boolean36 = body39.newObject("PartDesign::Boolean", "Boolean035")
boolean36.Type = "Fuse"
boolean36.addObjects([body38])
doc.recompute()

boolean37 = body39.newObject("PartDesign::Boolean", "Boolean036")
boolean37.Type = "Cut"
boolean37.addObjects([body4])
doc.recompute()

boolean38 = body39.newObject("PartDesign::Boolean", "Boolean037")
boolean38.Type = "Common"
boolean38.addObjects([body])

doc.recompute()
